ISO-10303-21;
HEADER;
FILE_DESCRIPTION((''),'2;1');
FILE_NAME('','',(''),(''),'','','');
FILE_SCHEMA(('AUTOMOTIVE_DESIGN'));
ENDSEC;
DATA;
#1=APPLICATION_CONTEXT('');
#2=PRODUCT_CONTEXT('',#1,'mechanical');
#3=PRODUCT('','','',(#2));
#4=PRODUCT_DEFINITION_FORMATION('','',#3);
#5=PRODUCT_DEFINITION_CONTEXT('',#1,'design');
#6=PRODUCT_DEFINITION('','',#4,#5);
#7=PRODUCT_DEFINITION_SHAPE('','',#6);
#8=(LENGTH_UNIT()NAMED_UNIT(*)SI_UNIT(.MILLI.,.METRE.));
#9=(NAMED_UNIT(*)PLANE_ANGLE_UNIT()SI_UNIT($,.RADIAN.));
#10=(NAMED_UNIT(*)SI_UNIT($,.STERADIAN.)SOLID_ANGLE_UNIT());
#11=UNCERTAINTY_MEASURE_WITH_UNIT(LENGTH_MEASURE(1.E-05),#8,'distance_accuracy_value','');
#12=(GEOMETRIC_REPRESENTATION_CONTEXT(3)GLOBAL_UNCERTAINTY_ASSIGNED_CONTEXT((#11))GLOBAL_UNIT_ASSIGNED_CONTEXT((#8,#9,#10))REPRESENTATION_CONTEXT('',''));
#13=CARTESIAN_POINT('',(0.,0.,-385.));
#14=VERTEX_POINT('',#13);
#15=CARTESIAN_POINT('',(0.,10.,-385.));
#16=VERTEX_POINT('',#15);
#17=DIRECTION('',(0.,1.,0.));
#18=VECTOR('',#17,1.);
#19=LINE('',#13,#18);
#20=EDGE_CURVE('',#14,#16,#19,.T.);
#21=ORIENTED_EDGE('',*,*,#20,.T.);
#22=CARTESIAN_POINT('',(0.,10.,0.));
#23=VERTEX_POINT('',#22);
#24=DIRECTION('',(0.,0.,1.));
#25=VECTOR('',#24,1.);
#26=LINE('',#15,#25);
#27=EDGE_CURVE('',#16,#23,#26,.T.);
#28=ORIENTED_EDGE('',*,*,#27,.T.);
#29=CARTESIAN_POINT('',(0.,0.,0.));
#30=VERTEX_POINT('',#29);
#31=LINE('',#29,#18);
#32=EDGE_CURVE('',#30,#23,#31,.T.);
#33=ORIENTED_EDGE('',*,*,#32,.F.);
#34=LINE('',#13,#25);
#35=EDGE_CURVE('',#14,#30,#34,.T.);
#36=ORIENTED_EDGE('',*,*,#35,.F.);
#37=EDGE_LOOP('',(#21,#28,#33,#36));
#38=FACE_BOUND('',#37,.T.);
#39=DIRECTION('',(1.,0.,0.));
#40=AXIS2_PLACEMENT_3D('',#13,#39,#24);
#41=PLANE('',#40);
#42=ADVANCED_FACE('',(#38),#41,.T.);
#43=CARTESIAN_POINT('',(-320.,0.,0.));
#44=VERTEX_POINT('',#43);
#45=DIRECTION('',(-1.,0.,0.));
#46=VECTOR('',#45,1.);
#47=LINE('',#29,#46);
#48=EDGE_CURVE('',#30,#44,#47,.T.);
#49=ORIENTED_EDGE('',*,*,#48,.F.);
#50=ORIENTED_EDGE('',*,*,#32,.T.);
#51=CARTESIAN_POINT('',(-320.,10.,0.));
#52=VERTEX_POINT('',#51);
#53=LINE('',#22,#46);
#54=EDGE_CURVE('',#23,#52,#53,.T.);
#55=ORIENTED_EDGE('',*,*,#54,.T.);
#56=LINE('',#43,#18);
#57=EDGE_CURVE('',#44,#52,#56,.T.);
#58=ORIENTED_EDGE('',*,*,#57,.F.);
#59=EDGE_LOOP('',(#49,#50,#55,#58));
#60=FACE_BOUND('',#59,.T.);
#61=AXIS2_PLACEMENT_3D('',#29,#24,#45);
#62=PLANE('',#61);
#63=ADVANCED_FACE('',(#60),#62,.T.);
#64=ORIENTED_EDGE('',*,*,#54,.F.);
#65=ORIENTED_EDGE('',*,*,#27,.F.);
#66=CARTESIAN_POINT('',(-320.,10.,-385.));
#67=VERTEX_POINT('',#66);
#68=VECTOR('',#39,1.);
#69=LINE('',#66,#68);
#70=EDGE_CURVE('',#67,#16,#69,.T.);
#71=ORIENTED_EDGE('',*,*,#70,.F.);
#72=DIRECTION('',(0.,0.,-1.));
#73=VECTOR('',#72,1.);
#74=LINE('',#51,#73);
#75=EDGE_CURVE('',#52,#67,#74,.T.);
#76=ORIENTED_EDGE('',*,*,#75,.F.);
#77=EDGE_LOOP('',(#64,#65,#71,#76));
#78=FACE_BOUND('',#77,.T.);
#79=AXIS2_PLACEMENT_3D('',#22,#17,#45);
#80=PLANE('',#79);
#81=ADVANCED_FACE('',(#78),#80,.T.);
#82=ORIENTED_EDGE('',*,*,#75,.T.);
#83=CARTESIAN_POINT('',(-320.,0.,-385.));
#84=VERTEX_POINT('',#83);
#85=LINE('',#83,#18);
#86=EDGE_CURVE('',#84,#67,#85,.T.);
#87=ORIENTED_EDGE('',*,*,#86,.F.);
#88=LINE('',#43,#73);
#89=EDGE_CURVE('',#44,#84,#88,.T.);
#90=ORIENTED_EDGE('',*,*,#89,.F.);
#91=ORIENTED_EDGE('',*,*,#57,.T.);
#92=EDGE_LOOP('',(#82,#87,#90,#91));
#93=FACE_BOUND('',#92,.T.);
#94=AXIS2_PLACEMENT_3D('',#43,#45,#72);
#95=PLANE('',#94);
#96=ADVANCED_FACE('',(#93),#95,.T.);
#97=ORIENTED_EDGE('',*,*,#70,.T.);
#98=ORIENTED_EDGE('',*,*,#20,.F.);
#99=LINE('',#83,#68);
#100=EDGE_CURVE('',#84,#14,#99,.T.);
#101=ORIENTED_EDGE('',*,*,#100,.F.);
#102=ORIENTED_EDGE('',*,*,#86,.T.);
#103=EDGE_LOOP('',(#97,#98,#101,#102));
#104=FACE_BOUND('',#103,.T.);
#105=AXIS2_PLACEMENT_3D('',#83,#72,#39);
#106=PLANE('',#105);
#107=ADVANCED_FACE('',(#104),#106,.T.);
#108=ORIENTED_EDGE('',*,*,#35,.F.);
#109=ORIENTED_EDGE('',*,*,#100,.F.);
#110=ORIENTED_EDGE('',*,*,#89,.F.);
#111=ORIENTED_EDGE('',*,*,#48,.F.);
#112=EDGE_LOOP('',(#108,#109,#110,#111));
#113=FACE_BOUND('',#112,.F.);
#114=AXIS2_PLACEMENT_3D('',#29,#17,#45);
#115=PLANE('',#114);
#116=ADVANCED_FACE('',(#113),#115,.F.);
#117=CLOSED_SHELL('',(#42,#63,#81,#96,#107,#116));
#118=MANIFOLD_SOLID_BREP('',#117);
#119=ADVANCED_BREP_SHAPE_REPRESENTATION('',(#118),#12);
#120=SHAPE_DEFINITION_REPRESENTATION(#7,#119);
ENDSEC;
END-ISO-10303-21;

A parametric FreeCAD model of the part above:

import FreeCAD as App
import Part
import Sketcher
from FreeCAD import Vector

doc = App.newDocument("Part")
body = doc.addObject("PartDesign::Body", "Body")

sketch1 = doc.addObject("Sketcher::SketchObject", "Sketch")
body.addObject(sketch1)
sketch1.AttachmentSupport = (doc.XZ_Plane, [""])
sketch1.MapMode = "FlatFace"
sketch1.addGeometry([
    Part.LineSegment(Vector(-320, 0, 0), Vector(0, 0, 0)),
    Part.LineSegment(Vector(0, 0, 0), Vector(0, -385, 0)),
    Part.LineSegment(Vector(0, -385, 0), Vector(-320, -385, 0)),
    Part.LineSegment(Vector(-320, -385, 0), Vector(-320, 0, 0)),
], False)
sketch1.addConstraint([
    Sketcher.Constraint("Coincident", 0, 2, 1, 1),
    Sketcher.Constraint("Coincident", 1, 2, 2, 1),
    Sketcher.Constraint("Coincident", 2, 2, 3, 1),
    Sketcher.Constraint("Coincident", 3, 2, 0, 1),
    Sketcher.Constraint("Horizontal", 0),
    Sketcher.Constraint("Vertical", 1),
    Sketcher.Constraint("Horizontal", 2),
    Sketcher.Constraint("Vertical", 3),
    Sketcher.Constraint("Coincident", 0, 2, -1, 1),
    Sketcher.Constraint("DistanceX", 0, 1, 0, 2, 320.0),
    Sketcher.Constraint("DistanceY", 1, 2, 1, 1, 385.0),
])
pad1 = doc.addObject("PartDesign::Pad", "Pad")
body.addObject(pad1)
pad1.Profile = sketch1
pad1.Length = 10
pad1.Reversed = True

doc.recompute()
